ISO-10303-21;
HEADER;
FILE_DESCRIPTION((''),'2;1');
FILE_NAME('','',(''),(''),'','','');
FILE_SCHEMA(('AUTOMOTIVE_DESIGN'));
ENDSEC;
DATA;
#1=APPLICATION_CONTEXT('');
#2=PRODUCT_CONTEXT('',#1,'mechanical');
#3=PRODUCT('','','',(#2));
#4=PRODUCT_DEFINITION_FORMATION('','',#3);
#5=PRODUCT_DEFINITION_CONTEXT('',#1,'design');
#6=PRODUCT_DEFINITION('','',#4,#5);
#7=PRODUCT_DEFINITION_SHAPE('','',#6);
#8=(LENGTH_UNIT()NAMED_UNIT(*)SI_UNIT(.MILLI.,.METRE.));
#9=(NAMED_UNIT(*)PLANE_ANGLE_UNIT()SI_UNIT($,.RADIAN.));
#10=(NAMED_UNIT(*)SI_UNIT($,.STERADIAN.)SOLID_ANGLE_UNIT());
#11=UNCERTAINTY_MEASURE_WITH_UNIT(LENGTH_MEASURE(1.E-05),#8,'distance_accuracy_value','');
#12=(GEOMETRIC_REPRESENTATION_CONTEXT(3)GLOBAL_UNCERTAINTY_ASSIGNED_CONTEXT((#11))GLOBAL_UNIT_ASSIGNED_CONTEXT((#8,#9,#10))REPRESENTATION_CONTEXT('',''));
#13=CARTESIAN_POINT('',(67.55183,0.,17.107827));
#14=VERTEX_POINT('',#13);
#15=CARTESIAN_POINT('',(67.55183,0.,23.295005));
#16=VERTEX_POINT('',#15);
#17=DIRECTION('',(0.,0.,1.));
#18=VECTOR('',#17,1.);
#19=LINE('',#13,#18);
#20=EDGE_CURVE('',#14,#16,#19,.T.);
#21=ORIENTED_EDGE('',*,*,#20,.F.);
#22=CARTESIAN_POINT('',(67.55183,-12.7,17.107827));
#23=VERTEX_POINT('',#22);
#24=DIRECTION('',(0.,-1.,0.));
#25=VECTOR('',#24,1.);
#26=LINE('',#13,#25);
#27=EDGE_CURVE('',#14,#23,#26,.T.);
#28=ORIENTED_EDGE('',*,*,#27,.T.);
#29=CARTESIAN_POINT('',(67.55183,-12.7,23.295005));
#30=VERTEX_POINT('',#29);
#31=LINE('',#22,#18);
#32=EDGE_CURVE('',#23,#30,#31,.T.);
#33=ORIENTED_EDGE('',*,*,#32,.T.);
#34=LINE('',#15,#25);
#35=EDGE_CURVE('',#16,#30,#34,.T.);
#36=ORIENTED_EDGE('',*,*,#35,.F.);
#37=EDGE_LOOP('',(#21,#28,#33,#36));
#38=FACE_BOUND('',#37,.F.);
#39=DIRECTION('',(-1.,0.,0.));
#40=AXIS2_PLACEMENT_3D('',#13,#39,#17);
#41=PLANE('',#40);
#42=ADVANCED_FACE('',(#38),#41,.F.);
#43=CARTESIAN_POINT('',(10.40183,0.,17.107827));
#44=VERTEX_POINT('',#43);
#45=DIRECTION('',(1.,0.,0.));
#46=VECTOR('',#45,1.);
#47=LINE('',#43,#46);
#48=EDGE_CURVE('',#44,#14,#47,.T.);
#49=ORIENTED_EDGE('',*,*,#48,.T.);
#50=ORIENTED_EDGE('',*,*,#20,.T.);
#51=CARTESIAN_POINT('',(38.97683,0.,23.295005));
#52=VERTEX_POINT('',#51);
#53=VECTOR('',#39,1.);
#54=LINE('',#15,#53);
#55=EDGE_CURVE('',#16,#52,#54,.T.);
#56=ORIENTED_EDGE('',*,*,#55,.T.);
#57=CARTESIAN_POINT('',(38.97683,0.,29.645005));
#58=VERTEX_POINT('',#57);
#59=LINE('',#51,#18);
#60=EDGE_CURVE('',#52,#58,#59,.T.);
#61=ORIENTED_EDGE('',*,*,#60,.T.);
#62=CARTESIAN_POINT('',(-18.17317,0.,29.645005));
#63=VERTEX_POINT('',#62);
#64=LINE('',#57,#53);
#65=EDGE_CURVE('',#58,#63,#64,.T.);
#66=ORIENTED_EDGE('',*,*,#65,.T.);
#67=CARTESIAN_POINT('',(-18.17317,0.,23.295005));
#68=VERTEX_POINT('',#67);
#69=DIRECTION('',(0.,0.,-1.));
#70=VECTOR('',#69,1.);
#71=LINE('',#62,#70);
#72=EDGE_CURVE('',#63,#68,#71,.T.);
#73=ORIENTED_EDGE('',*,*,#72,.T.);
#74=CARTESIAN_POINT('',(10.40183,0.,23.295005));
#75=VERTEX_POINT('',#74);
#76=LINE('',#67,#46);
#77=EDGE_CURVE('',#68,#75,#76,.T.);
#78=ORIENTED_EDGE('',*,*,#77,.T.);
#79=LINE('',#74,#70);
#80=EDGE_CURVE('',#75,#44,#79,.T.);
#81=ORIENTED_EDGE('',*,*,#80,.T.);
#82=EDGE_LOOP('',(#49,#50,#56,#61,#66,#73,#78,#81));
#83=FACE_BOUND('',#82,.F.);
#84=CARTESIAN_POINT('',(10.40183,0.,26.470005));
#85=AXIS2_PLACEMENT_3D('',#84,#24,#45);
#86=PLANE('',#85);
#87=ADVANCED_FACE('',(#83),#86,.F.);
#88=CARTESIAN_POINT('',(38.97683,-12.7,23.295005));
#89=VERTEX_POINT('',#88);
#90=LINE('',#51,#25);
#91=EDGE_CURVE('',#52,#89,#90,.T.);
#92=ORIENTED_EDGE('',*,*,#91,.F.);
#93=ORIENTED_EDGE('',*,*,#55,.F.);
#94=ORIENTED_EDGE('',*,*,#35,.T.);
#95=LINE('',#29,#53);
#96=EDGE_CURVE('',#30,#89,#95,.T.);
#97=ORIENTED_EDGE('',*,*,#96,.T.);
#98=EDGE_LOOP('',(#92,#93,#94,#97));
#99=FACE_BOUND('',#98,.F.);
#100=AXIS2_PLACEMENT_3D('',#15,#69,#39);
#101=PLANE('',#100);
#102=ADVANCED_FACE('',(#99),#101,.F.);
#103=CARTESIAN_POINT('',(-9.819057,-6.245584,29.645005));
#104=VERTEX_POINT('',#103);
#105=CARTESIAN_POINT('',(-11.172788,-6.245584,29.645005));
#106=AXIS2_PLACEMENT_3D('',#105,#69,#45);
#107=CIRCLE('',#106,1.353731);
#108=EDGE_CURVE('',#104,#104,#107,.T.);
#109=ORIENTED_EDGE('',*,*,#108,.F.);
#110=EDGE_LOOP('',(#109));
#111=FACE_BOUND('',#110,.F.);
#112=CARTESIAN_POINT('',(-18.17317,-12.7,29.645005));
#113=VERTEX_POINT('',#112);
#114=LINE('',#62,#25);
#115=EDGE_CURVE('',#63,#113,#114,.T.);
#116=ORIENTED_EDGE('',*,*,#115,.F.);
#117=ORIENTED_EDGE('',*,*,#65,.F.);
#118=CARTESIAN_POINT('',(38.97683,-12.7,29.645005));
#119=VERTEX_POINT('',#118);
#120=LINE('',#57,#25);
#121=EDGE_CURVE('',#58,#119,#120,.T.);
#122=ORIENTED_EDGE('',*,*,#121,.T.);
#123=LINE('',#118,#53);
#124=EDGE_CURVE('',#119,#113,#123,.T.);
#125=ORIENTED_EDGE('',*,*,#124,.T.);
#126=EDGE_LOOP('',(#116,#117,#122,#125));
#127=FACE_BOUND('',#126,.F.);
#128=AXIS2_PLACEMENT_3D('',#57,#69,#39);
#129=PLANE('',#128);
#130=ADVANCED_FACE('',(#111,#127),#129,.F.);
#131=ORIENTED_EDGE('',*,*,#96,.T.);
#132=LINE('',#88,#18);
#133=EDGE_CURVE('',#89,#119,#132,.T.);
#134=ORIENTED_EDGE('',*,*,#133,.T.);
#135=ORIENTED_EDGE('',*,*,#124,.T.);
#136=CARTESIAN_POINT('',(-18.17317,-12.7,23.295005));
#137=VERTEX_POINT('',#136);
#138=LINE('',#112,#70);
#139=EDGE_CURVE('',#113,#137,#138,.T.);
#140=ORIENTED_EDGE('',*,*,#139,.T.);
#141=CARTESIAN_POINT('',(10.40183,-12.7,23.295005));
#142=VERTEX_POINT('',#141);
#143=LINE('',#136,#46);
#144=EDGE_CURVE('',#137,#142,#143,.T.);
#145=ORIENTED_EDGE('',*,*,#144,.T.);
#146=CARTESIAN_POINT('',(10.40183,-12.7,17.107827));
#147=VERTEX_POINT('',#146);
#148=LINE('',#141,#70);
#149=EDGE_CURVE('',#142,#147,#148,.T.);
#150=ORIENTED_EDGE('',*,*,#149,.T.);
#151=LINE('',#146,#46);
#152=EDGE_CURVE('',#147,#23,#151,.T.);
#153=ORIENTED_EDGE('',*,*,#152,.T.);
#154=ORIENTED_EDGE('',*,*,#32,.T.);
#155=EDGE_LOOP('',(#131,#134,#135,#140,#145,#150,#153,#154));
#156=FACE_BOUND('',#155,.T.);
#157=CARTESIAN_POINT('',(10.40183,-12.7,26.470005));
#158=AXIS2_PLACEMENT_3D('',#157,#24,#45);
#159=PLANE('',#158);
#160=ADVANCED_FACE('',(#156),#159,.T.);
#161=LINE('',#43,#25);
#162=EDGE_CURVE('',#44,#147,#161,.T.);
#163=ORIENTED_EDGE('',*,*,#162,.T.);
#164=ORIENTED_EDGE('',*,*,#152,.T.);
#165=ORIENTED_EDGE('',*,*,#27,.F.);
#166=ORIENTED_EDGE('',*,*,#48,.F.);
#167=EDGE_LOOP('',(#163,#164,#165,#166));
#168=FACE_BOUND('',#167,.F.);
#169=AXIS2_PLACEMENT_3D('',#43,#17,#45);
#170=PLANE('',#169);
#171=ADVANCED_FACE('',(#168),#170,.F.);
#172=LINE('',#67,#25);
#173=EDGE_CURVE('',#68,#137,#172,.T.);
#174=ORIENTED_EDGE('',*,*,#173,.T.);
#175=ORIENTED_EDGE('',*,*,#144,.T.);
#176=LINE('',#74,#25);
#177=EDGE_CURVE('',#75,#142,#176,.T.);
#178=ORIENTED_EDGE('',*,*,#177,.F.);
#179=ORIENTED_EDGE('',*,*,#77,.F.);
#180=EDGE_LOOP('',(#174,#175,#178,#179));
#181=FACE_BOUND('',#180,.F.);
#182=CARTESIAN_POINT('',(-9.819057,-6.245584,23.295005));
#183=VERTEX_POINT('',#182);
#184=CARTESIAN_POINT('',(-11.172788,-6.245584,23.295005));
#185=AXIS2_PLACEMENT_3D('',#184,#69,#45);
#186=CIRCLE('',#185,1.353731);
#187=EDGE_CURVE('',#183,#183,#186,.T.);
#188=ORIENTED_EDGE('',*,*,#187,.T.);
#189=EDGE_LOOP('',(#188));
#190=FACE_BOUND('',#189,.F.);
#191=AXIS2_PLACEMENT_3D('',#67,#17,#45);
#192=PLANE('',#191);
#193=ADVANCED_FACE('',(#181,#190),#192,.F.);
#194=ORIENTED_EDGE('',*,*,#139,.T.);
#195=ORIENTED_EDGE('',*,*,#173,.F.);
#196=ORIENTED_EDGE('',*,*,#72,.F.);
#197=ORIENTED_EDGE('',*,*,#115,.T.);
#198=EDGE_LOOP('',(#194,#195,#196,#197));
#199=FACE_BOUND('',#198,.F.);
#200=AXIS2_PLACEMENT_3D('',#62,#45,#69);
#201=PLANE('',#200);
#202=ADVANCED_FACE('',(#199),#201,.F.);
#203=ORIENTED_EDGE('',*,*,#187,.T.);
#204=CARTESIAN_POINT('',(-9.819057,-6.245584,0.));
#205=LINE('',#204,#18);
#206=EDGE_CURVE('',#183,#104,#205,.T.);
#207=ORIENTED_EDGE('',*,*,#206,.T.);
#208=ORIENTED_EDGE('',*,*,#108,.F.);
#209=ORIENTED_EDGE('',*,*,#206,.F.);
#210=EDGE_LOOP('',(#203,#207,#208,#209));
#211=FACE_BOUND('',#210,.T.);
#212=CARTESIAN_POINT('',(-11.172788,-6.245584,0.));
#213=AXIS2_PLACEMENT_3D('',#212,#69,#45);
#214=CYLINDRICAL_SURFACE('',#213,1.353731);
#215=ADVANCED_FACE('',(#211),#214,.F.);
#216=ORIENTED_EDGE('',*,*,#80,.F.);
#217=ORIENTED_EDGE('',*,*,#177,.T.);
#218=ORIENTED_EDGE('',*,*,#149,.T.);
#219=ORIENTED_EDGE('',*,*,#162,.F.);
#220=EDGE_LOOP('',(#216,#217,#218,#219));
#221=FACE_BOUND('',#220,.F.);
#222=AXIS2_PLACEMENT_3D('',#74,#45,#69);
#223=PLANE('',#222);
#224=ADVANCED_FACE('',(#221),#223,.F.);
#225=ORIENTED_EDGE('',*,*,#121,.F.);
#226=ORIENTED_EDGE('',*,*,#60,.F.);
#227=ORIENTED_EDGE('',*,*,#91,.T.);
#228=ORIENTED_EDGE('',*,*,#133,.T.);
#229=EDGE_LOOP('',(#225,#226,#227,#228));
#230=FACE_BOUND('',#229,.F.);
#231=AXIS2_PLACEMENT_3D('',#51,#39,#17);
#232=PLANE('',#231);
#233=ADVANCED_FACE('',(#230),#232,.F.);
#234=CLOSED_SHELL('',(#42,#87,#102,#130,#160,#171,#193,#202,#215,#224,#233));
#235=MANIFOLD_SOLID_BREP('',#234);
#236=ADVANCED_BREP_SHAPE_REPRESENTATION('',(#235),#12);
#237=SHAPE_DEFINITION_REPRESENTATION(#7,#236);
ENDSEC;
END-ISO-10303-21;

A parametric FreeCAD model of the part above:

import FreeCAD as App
import Part
import Sketcher
Q = App.Units.Quantity

doc = App.newDocument("Part")
body = doc.addObject("PartDesign::Body", "Body")

# Sketch on XZ plane
sketch1 = doc.addObject("Sketcher::SketchObject", "Sketch")
body.addObject(sketch1)
sketch1.AttachmentSupport = (doc.XZ_Plane, [""])
sketch1.MapMode = "FlatFace"
sketch1.addGeometry([
    Part.LineSegment(App.Vector(39, 30, 0), App.Vector(-18, 30, 0)),  # 0
    Part.LineSegment(App.Vector(-18, 30, 0), App.Vector(-18, 23, 0)),  # 1
    Part.LineSegment(App.Vector(-18, 23, 0), App.Vector(10, 23, 0)),  # 2
    Part.LineSegment(App.Vector(10, 23, 0), App.Vector(10, 17, 0)),  # 3
    Part.LineSegment(App.Vector(10, 17, 0), App.Vector(68, 17, 0)),  # 4
    Part.LineSegment(App.Vector(68, 17, 0), App.Vector(68, 23, 0)),  # 5
    Part.LineSegment(App.Vector(68, 23, 0), App.Vector(39, 23, 0)),  # 6
    Part.LineSegment(App.Vector(39, 23, 0), App.Vector(39, 30, 0)),  # 7
], False)
sketch1.addConstraint([
    Sketcher.Constraint("Coincident", 0, 2, 1, 1),
    Sketcher.Constraint("Coincident", 1, 2, 2, 1),
    Sketcher.Constraint("Coincident", 2, 2, 3, 1),
    Sketcher.Constraint("Coincident", 3, 2, 4, 1),
    Sketcher.Constraint("Coincident", 4, 2, 5, 1),
    Sketcher.Constraint("Coincident", 5, 2, 6, 1),
    Sketcher.Constraint("Coincident", 6, 2, 7, 1),
    Sketcher.Constraint("Coincident", 7, 2, 0, 1),
    Sketcher.Constraint("Horizontal", 0),
    Sketcher.Constraint("Vertical", 1),
    Sketcher.Constraint("Horizontal", 2),
    Sketcher.Constraint("Vertical", 3),
    Sketcher.Constraint("Horizontal", 4),
    Sketcher.Constraint("Vertical", 5),
    Sketcher.Constraint("Horizontal", 6),
    Sketcher.Constraint("Vertical", 7),
    Sketcher.Constraint("Horizontal", 2, 2, 5, 2),
    Sketcher.Constraint("Equal", 0, 4),
    Sketcher.Constraint("DistanceX", 0, 2, 0, 1, Q("2.25 in")),
    Sketcher.Constraint("DistanceY", 1, 2, 1, 1, Q("0.25 in")),
    Sketcher.Constraint("DistanceX", 2, 1, 2, 2, Q("1.125 in")),
    Sketcher.Constraint("DistanceY", 3, 2, 3, 1, 6.187178),
    Sketcher.Constraint("DistanceX", 0, 2, -1, 1, 18.17317),
    Sketcher.Constraint("DistanceY", -1, 1, 0, 2, 29.645005),
])
pad1 = doc.addObject("PartDesign::Pad", "Pad")
body.addObject(pad1)
pad1.Profile = sketch1
pad1.Length = Q("0.5 in")

# Sketch on XY plane
sketch2 = doc.addObject("Sketcher::SketchObject", "Sketch001")
body.addObject(sketch2)
sketch2.AttachmentSupport = (doc.XY_Plane, [""])
sketch2.MapMode = "FlatFace"
sketch2.addGeometry(Part.Circle(App.Vector(-11.2, -6.2, 0), App.Vector(0, 0, 1), 1.4), False)
sketch2.addConstraint([
    Sketcher.Constraint("Diameter", 0, 2.707462),
    Sketcher.Constraint("DistanceX", 0, 3, -1, 1, 11.172788),
    Sketcher.Constraint("DistanceY", 0, 3, -1, 1, 6.245584),
])
pocket1 = doc.addObject("PartDesign::Pocket", "Pocket")
body.addObject(pocket1)
pocket1.Profile = sketch2
pocket1.Length = Q("2 in")
pocket1.Reversed = True

doc.recompute()
